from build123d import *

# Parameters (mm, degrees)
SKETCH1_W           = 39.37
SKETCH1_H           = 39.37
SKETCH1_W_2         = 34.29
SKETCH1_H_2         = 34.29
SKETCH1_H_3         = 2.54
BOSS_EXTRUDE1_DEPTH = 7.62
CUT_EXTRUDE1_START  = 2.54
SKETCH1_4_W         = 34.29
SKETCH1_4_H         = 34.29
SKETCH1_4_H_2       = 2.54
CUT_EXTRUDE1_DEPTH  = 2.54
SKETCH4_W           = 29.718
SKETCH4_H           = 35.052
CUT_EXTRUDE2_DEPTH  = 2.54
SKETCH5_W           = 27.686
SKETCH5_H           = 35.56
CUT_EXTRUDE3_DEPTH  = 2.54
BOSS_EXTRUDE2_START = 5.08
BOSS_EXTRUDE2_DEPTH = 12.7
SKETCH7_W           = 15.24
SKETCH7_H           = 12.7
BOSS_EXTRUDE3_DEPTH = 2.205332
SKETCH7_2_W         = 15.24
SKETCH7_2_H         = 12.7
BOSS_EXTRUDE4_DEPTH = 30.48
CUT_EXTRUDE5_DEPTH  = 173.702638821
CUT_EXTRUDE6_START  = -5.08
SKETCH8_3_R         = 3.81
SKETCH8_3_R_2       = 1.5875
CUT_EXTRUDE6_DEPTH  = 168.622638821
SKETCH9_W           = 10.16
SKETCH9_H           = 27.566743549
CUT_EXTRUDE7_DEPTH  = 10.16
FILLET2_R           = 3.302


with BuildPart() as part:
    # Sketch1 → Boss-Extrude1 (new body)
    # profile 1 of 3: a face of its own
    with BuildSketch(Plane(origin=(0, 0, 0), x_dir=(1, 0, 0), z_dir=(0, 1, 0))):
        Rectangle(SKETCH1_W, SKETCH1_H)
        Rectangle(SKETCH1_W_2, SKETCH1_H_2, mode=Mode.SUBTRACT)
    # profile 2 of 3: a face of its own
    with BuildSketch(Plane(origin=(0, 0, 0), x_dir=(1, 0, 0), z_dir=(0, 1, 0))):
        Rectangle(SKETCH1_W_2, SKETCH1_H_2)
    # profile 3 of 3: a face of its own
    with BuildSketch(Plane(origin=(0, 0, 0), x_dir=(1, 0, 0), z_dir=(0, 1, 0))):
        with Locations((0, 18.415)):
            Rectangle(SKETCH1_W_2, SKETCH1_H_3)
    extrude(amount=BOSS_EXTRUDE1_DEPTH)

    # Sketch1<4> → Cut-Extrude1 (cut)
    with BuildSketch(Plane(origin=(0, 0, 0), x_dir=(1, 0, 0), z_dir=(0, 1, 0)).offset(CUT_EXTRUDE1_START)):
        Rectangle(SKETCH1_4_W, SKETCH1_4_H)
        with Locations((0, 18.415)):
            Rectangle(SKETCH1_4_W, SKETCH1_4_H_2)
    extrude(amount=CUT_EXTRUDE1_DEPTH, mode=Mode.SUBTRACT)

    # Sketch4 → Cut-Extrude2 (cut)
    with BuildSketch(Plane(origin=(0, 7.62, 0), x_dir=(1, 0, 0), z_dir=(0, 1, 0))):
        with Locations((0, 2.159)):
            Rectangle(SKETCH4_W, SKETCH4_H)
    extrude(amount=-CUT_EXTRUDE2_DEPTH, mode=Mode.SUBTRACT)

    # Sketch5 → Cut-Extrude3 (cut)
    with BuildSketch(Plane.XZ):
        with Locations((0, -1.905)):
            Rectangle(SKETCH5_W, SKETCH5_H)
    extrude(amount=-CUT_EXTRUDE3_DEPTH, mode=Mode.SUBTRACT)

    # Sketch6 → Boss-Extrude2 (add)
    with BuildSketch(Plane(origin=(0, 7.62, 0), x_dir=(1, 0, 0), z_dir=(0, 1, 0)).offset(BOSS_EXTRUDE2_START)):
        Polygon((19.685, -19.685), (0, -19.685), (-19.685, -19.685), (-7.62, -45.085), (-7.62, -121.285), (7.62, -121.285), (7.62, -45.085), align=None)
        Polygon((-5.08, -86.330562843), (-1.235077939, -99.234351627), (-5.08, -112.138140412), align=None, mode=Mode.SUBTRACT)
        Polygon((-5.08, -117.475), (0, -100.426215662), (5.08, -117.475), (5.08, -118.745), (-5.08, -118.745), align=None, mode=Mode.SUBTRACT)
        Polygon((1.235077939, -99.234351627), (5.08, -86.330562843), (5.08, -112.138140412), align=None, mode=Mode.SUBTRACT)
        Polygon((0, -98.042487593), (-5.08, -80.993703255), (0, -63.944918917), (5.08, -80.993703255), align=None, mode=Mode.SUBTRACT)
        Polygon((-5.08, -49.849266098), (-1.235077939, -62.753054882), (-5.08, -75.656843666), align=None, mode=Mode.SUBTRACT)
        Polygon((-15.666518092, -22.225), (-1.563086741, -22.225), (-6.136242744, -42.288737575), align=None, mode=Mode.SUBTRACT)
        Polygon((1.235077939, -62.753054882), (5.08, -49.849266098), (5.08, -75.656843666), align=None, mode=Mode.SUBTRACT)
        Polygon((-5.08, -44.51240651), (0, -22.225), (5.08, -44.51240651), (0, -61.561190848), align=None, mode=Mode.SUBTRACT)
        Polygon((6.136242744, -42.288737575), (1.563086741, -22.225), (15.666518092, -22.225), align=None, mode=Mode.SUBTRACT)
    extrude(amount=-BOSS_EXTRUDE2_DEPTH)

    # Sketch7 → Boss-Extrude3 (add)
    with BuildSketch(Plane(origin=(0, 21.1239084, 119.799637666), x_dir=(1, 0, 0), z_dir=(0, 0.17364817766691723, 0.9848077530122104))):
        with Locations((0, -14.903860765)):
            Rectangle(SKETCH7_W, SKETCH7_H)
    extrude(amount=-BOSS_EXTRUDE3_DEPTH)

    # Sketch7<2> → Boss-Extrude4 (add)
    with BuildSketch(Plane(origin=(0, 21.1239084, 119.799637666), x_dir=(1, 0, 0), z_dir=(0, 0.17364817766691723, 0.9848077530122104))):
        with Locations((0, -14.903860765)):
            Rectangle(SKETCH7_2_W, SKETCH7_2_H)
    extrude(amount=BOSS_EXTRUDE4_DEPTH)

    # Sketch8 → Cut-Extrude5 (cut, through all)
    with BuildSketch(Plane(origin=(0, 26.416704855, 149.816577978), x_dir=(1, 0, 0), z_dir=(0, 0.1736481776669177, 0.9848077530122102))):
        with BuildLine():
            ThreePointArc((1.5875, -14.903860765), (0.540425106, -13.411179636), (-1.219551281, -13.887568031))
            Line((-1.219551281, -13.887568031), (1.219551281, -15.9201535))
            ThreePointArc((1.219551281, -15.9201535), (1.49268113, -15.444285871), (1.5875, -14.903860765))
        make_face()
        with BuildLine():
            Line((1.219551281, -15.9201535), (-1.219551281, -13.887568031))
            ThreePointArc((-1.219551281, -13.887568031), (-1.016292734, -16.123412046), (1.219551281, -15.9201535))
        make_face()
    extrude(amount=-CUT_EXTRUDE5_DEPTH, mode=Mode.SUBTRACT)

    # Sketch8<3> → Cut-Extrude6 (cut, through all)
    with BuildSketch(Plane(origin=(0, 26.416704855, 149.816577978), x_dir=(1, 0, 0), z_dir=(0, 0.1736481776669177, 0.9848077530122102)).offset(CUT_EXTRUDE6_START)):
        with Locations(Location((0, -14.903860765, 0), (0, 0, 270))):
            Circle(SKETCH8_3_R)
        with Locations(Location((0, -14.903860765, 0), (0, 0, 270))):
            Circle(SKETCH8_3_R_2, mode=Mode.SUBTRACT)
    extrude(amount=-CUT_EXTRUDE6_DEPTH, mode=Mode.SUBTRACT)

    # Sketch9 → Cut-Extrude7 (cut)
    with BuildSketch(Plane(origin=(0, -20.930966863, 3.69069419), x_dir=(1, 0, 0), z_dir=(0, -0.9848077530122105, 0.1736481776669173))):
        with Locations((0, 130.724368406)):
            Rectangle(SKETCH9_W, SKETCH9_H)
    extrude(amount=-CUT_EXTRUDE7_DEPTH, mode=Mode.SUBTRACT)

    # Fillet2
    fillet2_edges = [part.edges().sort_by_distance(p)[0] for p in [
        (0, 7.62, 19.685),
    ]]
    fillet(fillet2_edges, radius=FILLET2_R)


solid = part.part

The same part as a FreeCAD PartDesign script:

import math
import FreeCAD as App
import Part
import Sketcher

V = App.Vector
Q = App.Units.Quantity


def edges_at(feature, points):
    """Names of the edges that pass closest to the given points."""
    edges = feature.Shape.Edges
    near = lambda p: min(range(len(edges)), key=lambda i: edges[i].distToShape(Part.Vertex(*p))[0])
    return sorted({f"Edge{near(p) + 1}" for p in points})


def add_polygon(sketch, points):
    """Adds a closed chain of lines whose ends are joined by coincident constraints."""
    first, n = sketch.GeometryCount, len(points)
    for a, b in zip(points, points[1:] + points[:1]):
        sketch.addGeometry(Part.LineSegment(App.Vector(*a, 0), App.Vector(*b, 0)), False)
    for i in range(n):
        sketch.addConstraint(Sketcher.Constraint("Coincident", first + i, 2, first + (i + 1) % n, 1))

doc = App.newDocument("Part")
body = doc.addObject("PartDesign::Body", "Body")

# Sketch on XZ plane
sketch1 = body.newObject("Sketcher::SketchObject", "Sketch")
sketch1.AttachmentSupport = (doc.getObject("XZ_Plane"), [""])
sketch1.MapMode = "FlatFace"
add_polygon(sketch1, [(-19.685, -19.685), (-19.685, 19.685), (19.685, 19.685), (19.685, -19.685)])  # lines 0-3
sketch1.addConstraint([
    Sketcher.Constraint("Vertical", 0),
    Sketcher.Constraint("Horizontal", 1),
    Sketcher.Constraint("Vertical", 2),
    Sketcher.Constraint("Horizontal", 3),
    Sketcher.Constraint("Symmetric", 0, 2, 2, 2, -1, 1),
    Sketcher.Constraint("Equal", 3, 0),
    Sketcher.Constraint("DistanceX", 1, 1, 1, 2, Q("1.55 in")),
])
pad1 = body.newObject("PartDesign::Pad", "Pad")
pad1.Profile = sketch1
pad1.Length = Q("0.3 in")
pad1.Reversed = True

# Sketch on XZ plane
sketch2 = body.newObject("Sketcher::SketchObject", "Sketch001")
sketch2.AttachmentSupport = (doc.getObject("XZ_Plane"), [""])
sketch2.MapMode = "FlatFace"
sketch2.AttachmentOffset = App.Placement(V(0, 0, -0.1 * 25.4), App.Rotation())
add_polygon(sketch2, [(-17.145, 17.145), (17.145, 17.145), (17.145, -19.685), (-17.145, -19.685)])  # lines 0-3
sketch2.addConstraint([
    Sketcher.Constraint("Horizontal", 0),
    Sketcher.Constraint("Vertical", 1),
    Sketcher.Constraint("Horizontal", 2),
    Sketcher.Constraint("Vertical", 3),
    Sketcher.Constraint("DistanceX", 0, 1, 0, 2, Q("1.35 in")),
    Sketcher.Constraint("DistanceY", 1, 2, 1, 1, Q("1.45 in")),
    Sketcher.Constraint("DistanceX", -1, 1, 0, 2, Q("0.675 in")),
    Sketcher.Constraint("DistanceY", -1, 1, 0, 2, Q("0.675 in")),
])
pocket1 = body.newObject("PartDesign::Pocket", "Pocket")
pocket1.Profile = sketch2
pocket1.Length = Q("0.1 in")

# Sketch on XZ plane
sketch3 = body.newObject("Sketcher::SketchObject", "Sketch002")
sketch3.AttachmentSupport = (doc.getObject("XZ_Plane"), [""])
sketch3.MapMode = "FlatFace"
sketch3.AttachmentOffset = App.Placement(V(0, 0, -0.3 * 25.4), App.Rotation())
add_polygon(sketch3, [(-14.859, -19.685), (-14.859, 15.367), (14.859, 15.367), (14.859, -19.685)])  # lines 0-3
sketch3.addConstraint([
    Sketcher.Constraint("Vertical", 0),
    Sketcher.Constraint("Horizontal", 1),
    Sketcher.Constraint("Vertical", 2),
    Sketcher.Constraint("Horizontal", 3),
    Sketcher.Constraint("DistanceX", 1, 1, 1, 2, Q("1.17 in")),
    Sketcher.Constraint("DistanceY", 0, 1, 0, 2, Q("1.38 in")),
    Sketcher.Constraint("DistanceX", 0, 2, -1, 1, Q("0.585 in")),
    Sketcher.Constraint("DistanceY", -1, 1, 0, 2, Q("0.605 in")),
])
pocket2 = body.newObject("PartDesign::Pocket", "Pocket001")
pocket2.Profile = sketch3
pocket2.Length = Q("0.1 in")
pocket2.Reversed = True

# Sketch on XZ plane
sketch4 = body.newObject("Sketcher::SketchObject", "Sketch003")
sketch4.AttachmentSupport = (doc.getObject("XZ_Plane"), [""])
sketch4.MapMode = "FlatFace"
add_polygon(sketch4, [(-13.843, 15.875), (-13.843, -19.685), (13.843, -19.685), (13.843, 15.875)])  # lines 0-3
sketch4.addConstraint([
    Sketcher.Constraint("Vertical", 0),
    Sketcher.Constraint("Horizontal", 1),
    Sketcher.Constraint("Vertical", 2),
    Sketcher.Constraint("Horizontal", 3),
    Sketcher.Constraint("DistanceY", 0, 2, 0, 1, Q("1.4 in")),
    Sketcher.Constraint("DistanceX", 1, 1, 1, 2, Q("1.09 in")),
    Sketcher.Constraint("DistanceX", 0, 2, -1, 1, Q("0.545 in")),
    Sketcher.Constraint("DistanceY", 0, 2, -1, 1, Q("0.775 in")),
])
pocket3 = body.newObject("PartDesign::Pocket", "Pocket002")
pocket3.Profile = sketch4
pocket3.Length = Q("0.1 in")

# Sketch on XZ plane
sketch5 = body.newObject("Sketcher::SketchObject", "Sketch004")
sketch5.AttachmentSupport = (doc.getObject("XZ_Plane"), [""])
sketch5.MapMode = "FlatFace"
sketch5.AttachmentOffset = App.Placement(V(0, 0, -0.5 * 25.4), App.Rotation())
add_polygon(sketch5, [(19.685, 19.685), (-19.685, 19.685), (-7.62, 45.085), (-7.62, 121.285), (7.62, 121.285), (7.62, 45.085)])  # lines 0-5
add_polygon(sketch5, [(-5.08, 112.13814), (-5.08, 86.330563), (-1.235078, 99.234352)])  # lines 6-8
add_polygon(sketch5, [(-5.08, 118.745), (-5.08, 117.475), (0, 100.426216), (5.08, 117.475), (5.08, 118.745)])  # lines 9-13
add_polygon(sketch5, [(5.08, 112.13814), (1.235078, 99.234352), (5.08, 86.330563)])  # lines 14-16
add_polygon(sketch5, [(5.08, 80.993703), (0, 98.042488), (-5.08, 80.993703), (0, 63.944919)])  # lines 17-20
add_polygon(sketch5, [(-5.08, 75.656844), (-5.08, 49.849266), (-1.235078, 62.753055)])  # lines 21-23
add_polygon(sketch5, [(-6.136243, 42.288738), (-15.666518, 22.225), (-1.563087, 22.225)])  # lines 24-26
add_polygon(sketch5, [(5.08, 75.656844), (1.235078, 62.753055), (5.08, 49.849266)])  # lines 27-29
add_polygon(sketch5, [(0, 61.561191), (-5.08, 44.512407), (0, 22.225), (5.08, 44.512407)])  # lines 30-33
add_polygon(sketch5, [(15.666518, 22.225), (6.136243, 42.288738), (1.563087, 22.225)])  # lines 34-36
sketch5.addConstraint([
    Sketcher.Constraint("Horizontal", 0),
    Sketcher.Constraint("Vertical", 2),
    Sketcher.Constraint("Horizontal", 3),
    Sketcher.Constraint("Vertical", 4),
    Sketcher.Constraint("Vertical", 6),
    Sketcher.Constraint("Vertical", 9),
    Sketcher.Constraint("Vertical", 12),
    Sketcher.Constraint("Horizontal", 13),
    Sketcher.Constraint("Vertical", 16),
    Sketcher.Constraint("Vertical", 21),
    Sketcher.Constraint("Horizontal", 25),
    Sketcher.Constraint("Vertical", 29),
    Sketcher.Constraint("Horizontal", 36),
    Sketcher.Constraint("Symmetric", 1, 2, 4, 2, -2),
    Sketcher.Constraint("Symmetric", 9, 2, 11, 2, -2),
    Sketcher.Constraint("Symmetric", 7, 2, 14, 2, -2),
    Sketcher.Constraint("Symmetric", 6, 2, 15, 2, -2),
    Sketcher.Constraint("Symmetric", 18, 2, 20, 2, -2),
    Sketcher.Constraint("Symmetric", 22, 2, 27, 2, -2),
    Sketcher.Constraint("Symmetric", 21, 2, 28, 2, -2),
    Sketcher.Constraint("Symmetric", 30, 2, 32, 2, -2),
    Sketcher.Constraint("Symmetric", 26, 2, 34, 2, -2),
    Sketcher.Constraint("Symmetric", 25, 2, 35, 2, -2),
    Sketcher.Constraint("PointOnObject", 10, 2, -2),
    Sketcher.Constraint("PointOnObject", 17, 2, -2),
    Sketcher.Constraint("PointOnObject", 19, 2, -2),
    Sketcher.Constraint("PointOnObject", 31, 2, -2),
    Sketcher.Constraint("PointOnObject", 33, 2, -2),
    Sketcher.Constraint("Parallel", 8, 10),
    Sketcher.Constraint("Parallel", 7, 11),
    Sketcher.Constraint("Parallel", 11, 14),
    Sketcher.Constraint("Parallel", 15, 17),
    Sketcher.Constraint("Parallel", 17, 19),
    Sketcher.Constraint("Parallel", 20, 22),
    Sketcher.Constraint("Parallel", 19, 23),
    Sketcher.Constraint("Parallel", 1, 24),
    Sketcher.Constraint("Parallel", 22, 27),
    Sketcher.Constraint("Parallel", 27, 30),
    Sketcher.Constraint("Parallel", 26, 31),
    Sketcher.Constraint("Parallel", 5, 34),
    Sketcher.Constraint("Horizontal", 25, 2, 31, 2),
    Sketcher.Constraint("Vertical", 8, 2, 9, 2),
    Sketcher.Constraint("Vertical", 13, 2, 18, 2),
    Sketcher.Constraint("Vertical", 18, 2, 21, 2),
    Sketcher.Constraint("Vertical", 7, 2, 22, 2),
    Sketcher.Constraint("Vertical", 23, 2, 30, 2),
    Sketcher.Constraint("Equal", 25, 36),
    Sketcher.Constraint("DistanceY", 2, 1, 2, 2, Q("3 in")),
    Sketcher.Constraint("DistanceX", 3, 1, 3, 2, Q("0.6 in")),
    Sketcher.Constraint("DistanceX", 13, 2, 13, 1, Q("0.4 in")),
    Sketcher.Constraint("DistanceY", 0, 2, 1, 2, Q("1 in")),
    Sketcher.Constraint("DistanceX", 0, 2, 0, 1, Q("1.55 in")),
    Sketcher.Constraint("DistanceY", 9, 2, 9, 1, Q("0.05 in")),
    Sketcher.Constraint("DistanceY", 12, 2, 3, 2, Q("0.1 in")),
    Sketcher.Constraint("DistanceY", 0, 2, 24, 2, Q("0.1 in")),
    Sketcher.Constraint("DistanceY", -1, 1, 0, 2, Q("0.775 in")),
    Sketcher.Constraint("DistanceX", 25, 1, 25, 2, Q("14.103431 mm")),
    Sketcher.Constraint("Distance", 7, Q("13.464442 mm")),
    Sketcher.Constraint("Distance", 10, Q("17.789532 mm")),
    Sketcher.Constraint("Distance", 26, Q("20.578322 mm")),
    Sketcher.Constraint("DistanceY", -1, 1, 7, 2, Q("99.234352 mm")),
    Sketcher.Constraint("DistanceY", -1, 1, 19, 2, Q("63.944919 mm")),
    Sketcher.Constraint("DistanceX", 24, 2, -1, 1, Q("15.666518 mm")),
    Sketcher.Constraint("DistanceY", 22, 2, 18, 2, Q("18.240648 mm")),
])
pad2 = body.newObject("PartDesign::Pad", "Pad001")
pad2.Profile = sketch5
pad2.Length = Q("0.5 in")

# Sketch on an angled plane
sketch6 = body.newObject("Sketcher::SketchObject", "Sketch005")
sketch6.Placement = App.Placement(V(0, 21.123908, 119.799638), App.Rotation(V(1, 0, 0), V(0, 0.984807753, -0.173648178), V(0, 0.173648178, 0.984807753), "ZXY"))
add_polygon(sketch6, [(-7.62, -8.553861), (-7.62, -21.253861), (7.62, -21.253861), (7.62, -8.553861)])  # lines 0-3
sketch6.addConstraint([
    Sketcher.Constraint("Vertical", 0),
    Sketcher.Constraint("Horizontal", 1),
    Sketcher.Constraint("Vertical", 2),
    Sketcher.Constraint("Horizontal", 3),
    Sketcher.Constraint("DistanceX", 1, 1, 1, 2, Q("0.6 in")),
    Sketcher.Constraint("DistanceY", 0, 2, 0, 1, Q("0.5 in")),
    Sketcher.Constraint("DistanceX", 0, 2, -1, 1, Q("0.3 in")),
    Sketcher.Constraint("DistanceY", 0, 2, -1, 1, Q("21.253861 mm")),
])
pad3 = body.newObject("PartDesign::Pad", "Pad002")
pad3.Profile = sketch6
pad3.Length = 2.205332
pad3.Reversed = True

# Sketch on an angled plane
sketch7 = body.newObject("Sketcher::SketchObject", "Sketch006")
sketch7.Placement = App.Placement(V(0, 21.123908, 119.799638), App.Rotation(V(1, 0, 0), V(0, 0.984807753, -0.173648178), V(0, 0.173648178, 0.984807753), "ZXY"))
add_polygon(sketch7, [(-7.62, -8.553861), (-7.62, -21.253861), (7.62, -21.253861), (7.62, -8.553861)])  # lines 0-3
sketch7.addConstraint([
    Sketcher.Constraint("Vertical", 0),
    Sketcher.Constraint("Horizontal", 1),
    Sketcher.Constraint("Vertical", 2),
    Sketcher.Constraint("Horizontal", 3),
    Sketcher.Constraint("DistanceX", 1, 1, 1, 2, Q("0.6 in")),
    Sketcher.Constraint("DistanceY", 0, 2, 0, 1, Q("0.5 in")),
    Sketcher.Constraint("DistanceX", 0, 2, -1, 1, Q("0.3 in")),
    Sketcher.Constraint("DistanceY", 0, 2, -1, 1, Q("21.253861 mm")),
])
pad4 = body.newObject("PartDesign::Pad", "Pad003")
pad4.Profile = sketch7
pad4.Length = Q("1.2 in")

# Sketch on an angled plane
sketch8 = body.newObject("Sketcher::SketchObject", "Sketch007")
sketch8.Placement = App.Placement(V(0, 26.416705, 149.816578), App.Rotation(V(1, 0, 0), V(0, 0.984807753, -0.173648178), V(0, 0.173648178, 0.984807753), "ZXY"))
sketch8.addGeometry([
    Part.ArcOfCircle(Part.Circle(V(0, -14.903861, 0), V(0, 0, 1), 1.5875), math.radians(0), math.radians(140.194429)),
    Part.ArcOfCircle(Part.Circle(V(0, -14.903861, 0), V(0, 0, 1), 1.5875), math.radians(140.194429), math.radians(320.194429)),
    Part.ArcOfCircle(Part.Circle(V(0, -14.903861, 0), V(0, 0, 1), 1.5875), math.radians(-39.805571), math.radians(0)),
], False)
sketch8.addConstraint([
    Sketcher.Constraint("Tangent", 0, 2, 1, 1),
    Sketcher.Constraint("Tangent", 1, 2, 2, 1),
    Sketcher.Constraint("Tangent", 2, 2, 0, 1),
    Sketcher.Constraint("PointOnObject", 0, 3, -2),
    Sketcher.Constraint("Horizontal", 1, 3, 2, 2),
    Sketcher.Constraint("Radius", 0, Q("0.0625 in")),
    Sketcher.Constraint("DistanceY", 0, 3, -1, 1, Q("14.903861 mm")),
    Sketcher.Constraint("DistanceX", 0, 2, -1, 1, Q("1.219551 mm")),
    Sketcher.Constraint("DistanceX", -1, 1, 1, 2, Q("1.219551 mm")),
])
pocket4 = body.newObject("PartDesign::Pocket", "Pocket003")
pocket4.Profile = sketch8
pocket4.Type = "ThroughAll"

# Sketch on an angled plane
sketch9 = body.newObject("Sketcher::SketchObject", "Sketch008")
sketch9.Placement = App.Placement(V(0, 25.534572, 144.813755), App.Rotation(V(1, 0, 0), V(0, 0.984807753, -0.173648178), V(0, 0.173648178, 0.984807753), "ZXY"))
sketch9.addGeometry([
    Part.Circle(V(0, -14.903861, 0), V(0, 0, 1), 3.81),
    Part.Circle(V(0, -14.903861, 0), V(0, 0, 1), 1.5875),
], False)
sketch9.addConstraint([
    Sketcher.Constraint("Coincident", 1, 3, 0, 3),
    Sketcher.Constraint("PointOnObject", 0, 3, -2),
    Sketcher.Constraint("Diameter", 0, Q("0.3 in")),
    Sketcher.Constraint("Diameter", 1, Q("0.125 in")),
    Sketcher.Constraint("DistanceY", 0, 3, -1, 1, Q("14.903861 mm")),
])
pocket5 = body.newObject("PartDesign::Pocket", "Pocket004")
pocket5.Profile = sketch9
pocket5.Type = "ThroughAll"

# Sketch on an angled plane
sketch10 = body.newObject("Sketcher::SketchObject", "Sketch009")
sketch10.Placement = App.Placement(V(0, -20.930967, 3.690694), App.Rotation(V(1, 0, 0), V(0, 0.173648178, 0.984807753), V(0, -0.984807753, 0.173648178), "ZXY"))
add_polygon(sketch10, [(-5.08, 144.50774), (-5.08, 116.940997), (5.08, 116.940997), (5.08, 144.50774)])  # lines 0-3
sketch10.addConstraint([
    Sketcher.Constraint("Vertical", 0),
    Sketcher.Constraint("Horizontal", 1),
    Sketcher.Constraint("Vertical", 2),
    Sketcher.Constraint("Horizontal", 3),
    Sketcher.Constraint("DistanceX", 1, 1, 1, 2, Q("0.4 in")),
    Sketcher.Constraint("DistanceX", 0, 2, -1, 1, Q("0.2 in")),
    Sketcher.Constraint("DistanceY", 0, 2, 0, 1, Q("27.566744 mm")),
    Sketcher.Constraint("DistanceY", -1, 1, 2, 2, Q("144.50774 mm")),
])
pocket6 = body.newObject("PartDesign::Pocket", "Pocket005")
pocket6.Profile = sketch10
pocket6.Length = Q("0.4 in")
doc.recompute()

fillet = body.newObject("PartDesign::Fillet", "Fillet")
fillet.Base = (pocket6, edges_at(pocket6, [(0, 7.62, 19.685)]))
fillet.Radius = Q("0.13 in")

doc.recompute()
